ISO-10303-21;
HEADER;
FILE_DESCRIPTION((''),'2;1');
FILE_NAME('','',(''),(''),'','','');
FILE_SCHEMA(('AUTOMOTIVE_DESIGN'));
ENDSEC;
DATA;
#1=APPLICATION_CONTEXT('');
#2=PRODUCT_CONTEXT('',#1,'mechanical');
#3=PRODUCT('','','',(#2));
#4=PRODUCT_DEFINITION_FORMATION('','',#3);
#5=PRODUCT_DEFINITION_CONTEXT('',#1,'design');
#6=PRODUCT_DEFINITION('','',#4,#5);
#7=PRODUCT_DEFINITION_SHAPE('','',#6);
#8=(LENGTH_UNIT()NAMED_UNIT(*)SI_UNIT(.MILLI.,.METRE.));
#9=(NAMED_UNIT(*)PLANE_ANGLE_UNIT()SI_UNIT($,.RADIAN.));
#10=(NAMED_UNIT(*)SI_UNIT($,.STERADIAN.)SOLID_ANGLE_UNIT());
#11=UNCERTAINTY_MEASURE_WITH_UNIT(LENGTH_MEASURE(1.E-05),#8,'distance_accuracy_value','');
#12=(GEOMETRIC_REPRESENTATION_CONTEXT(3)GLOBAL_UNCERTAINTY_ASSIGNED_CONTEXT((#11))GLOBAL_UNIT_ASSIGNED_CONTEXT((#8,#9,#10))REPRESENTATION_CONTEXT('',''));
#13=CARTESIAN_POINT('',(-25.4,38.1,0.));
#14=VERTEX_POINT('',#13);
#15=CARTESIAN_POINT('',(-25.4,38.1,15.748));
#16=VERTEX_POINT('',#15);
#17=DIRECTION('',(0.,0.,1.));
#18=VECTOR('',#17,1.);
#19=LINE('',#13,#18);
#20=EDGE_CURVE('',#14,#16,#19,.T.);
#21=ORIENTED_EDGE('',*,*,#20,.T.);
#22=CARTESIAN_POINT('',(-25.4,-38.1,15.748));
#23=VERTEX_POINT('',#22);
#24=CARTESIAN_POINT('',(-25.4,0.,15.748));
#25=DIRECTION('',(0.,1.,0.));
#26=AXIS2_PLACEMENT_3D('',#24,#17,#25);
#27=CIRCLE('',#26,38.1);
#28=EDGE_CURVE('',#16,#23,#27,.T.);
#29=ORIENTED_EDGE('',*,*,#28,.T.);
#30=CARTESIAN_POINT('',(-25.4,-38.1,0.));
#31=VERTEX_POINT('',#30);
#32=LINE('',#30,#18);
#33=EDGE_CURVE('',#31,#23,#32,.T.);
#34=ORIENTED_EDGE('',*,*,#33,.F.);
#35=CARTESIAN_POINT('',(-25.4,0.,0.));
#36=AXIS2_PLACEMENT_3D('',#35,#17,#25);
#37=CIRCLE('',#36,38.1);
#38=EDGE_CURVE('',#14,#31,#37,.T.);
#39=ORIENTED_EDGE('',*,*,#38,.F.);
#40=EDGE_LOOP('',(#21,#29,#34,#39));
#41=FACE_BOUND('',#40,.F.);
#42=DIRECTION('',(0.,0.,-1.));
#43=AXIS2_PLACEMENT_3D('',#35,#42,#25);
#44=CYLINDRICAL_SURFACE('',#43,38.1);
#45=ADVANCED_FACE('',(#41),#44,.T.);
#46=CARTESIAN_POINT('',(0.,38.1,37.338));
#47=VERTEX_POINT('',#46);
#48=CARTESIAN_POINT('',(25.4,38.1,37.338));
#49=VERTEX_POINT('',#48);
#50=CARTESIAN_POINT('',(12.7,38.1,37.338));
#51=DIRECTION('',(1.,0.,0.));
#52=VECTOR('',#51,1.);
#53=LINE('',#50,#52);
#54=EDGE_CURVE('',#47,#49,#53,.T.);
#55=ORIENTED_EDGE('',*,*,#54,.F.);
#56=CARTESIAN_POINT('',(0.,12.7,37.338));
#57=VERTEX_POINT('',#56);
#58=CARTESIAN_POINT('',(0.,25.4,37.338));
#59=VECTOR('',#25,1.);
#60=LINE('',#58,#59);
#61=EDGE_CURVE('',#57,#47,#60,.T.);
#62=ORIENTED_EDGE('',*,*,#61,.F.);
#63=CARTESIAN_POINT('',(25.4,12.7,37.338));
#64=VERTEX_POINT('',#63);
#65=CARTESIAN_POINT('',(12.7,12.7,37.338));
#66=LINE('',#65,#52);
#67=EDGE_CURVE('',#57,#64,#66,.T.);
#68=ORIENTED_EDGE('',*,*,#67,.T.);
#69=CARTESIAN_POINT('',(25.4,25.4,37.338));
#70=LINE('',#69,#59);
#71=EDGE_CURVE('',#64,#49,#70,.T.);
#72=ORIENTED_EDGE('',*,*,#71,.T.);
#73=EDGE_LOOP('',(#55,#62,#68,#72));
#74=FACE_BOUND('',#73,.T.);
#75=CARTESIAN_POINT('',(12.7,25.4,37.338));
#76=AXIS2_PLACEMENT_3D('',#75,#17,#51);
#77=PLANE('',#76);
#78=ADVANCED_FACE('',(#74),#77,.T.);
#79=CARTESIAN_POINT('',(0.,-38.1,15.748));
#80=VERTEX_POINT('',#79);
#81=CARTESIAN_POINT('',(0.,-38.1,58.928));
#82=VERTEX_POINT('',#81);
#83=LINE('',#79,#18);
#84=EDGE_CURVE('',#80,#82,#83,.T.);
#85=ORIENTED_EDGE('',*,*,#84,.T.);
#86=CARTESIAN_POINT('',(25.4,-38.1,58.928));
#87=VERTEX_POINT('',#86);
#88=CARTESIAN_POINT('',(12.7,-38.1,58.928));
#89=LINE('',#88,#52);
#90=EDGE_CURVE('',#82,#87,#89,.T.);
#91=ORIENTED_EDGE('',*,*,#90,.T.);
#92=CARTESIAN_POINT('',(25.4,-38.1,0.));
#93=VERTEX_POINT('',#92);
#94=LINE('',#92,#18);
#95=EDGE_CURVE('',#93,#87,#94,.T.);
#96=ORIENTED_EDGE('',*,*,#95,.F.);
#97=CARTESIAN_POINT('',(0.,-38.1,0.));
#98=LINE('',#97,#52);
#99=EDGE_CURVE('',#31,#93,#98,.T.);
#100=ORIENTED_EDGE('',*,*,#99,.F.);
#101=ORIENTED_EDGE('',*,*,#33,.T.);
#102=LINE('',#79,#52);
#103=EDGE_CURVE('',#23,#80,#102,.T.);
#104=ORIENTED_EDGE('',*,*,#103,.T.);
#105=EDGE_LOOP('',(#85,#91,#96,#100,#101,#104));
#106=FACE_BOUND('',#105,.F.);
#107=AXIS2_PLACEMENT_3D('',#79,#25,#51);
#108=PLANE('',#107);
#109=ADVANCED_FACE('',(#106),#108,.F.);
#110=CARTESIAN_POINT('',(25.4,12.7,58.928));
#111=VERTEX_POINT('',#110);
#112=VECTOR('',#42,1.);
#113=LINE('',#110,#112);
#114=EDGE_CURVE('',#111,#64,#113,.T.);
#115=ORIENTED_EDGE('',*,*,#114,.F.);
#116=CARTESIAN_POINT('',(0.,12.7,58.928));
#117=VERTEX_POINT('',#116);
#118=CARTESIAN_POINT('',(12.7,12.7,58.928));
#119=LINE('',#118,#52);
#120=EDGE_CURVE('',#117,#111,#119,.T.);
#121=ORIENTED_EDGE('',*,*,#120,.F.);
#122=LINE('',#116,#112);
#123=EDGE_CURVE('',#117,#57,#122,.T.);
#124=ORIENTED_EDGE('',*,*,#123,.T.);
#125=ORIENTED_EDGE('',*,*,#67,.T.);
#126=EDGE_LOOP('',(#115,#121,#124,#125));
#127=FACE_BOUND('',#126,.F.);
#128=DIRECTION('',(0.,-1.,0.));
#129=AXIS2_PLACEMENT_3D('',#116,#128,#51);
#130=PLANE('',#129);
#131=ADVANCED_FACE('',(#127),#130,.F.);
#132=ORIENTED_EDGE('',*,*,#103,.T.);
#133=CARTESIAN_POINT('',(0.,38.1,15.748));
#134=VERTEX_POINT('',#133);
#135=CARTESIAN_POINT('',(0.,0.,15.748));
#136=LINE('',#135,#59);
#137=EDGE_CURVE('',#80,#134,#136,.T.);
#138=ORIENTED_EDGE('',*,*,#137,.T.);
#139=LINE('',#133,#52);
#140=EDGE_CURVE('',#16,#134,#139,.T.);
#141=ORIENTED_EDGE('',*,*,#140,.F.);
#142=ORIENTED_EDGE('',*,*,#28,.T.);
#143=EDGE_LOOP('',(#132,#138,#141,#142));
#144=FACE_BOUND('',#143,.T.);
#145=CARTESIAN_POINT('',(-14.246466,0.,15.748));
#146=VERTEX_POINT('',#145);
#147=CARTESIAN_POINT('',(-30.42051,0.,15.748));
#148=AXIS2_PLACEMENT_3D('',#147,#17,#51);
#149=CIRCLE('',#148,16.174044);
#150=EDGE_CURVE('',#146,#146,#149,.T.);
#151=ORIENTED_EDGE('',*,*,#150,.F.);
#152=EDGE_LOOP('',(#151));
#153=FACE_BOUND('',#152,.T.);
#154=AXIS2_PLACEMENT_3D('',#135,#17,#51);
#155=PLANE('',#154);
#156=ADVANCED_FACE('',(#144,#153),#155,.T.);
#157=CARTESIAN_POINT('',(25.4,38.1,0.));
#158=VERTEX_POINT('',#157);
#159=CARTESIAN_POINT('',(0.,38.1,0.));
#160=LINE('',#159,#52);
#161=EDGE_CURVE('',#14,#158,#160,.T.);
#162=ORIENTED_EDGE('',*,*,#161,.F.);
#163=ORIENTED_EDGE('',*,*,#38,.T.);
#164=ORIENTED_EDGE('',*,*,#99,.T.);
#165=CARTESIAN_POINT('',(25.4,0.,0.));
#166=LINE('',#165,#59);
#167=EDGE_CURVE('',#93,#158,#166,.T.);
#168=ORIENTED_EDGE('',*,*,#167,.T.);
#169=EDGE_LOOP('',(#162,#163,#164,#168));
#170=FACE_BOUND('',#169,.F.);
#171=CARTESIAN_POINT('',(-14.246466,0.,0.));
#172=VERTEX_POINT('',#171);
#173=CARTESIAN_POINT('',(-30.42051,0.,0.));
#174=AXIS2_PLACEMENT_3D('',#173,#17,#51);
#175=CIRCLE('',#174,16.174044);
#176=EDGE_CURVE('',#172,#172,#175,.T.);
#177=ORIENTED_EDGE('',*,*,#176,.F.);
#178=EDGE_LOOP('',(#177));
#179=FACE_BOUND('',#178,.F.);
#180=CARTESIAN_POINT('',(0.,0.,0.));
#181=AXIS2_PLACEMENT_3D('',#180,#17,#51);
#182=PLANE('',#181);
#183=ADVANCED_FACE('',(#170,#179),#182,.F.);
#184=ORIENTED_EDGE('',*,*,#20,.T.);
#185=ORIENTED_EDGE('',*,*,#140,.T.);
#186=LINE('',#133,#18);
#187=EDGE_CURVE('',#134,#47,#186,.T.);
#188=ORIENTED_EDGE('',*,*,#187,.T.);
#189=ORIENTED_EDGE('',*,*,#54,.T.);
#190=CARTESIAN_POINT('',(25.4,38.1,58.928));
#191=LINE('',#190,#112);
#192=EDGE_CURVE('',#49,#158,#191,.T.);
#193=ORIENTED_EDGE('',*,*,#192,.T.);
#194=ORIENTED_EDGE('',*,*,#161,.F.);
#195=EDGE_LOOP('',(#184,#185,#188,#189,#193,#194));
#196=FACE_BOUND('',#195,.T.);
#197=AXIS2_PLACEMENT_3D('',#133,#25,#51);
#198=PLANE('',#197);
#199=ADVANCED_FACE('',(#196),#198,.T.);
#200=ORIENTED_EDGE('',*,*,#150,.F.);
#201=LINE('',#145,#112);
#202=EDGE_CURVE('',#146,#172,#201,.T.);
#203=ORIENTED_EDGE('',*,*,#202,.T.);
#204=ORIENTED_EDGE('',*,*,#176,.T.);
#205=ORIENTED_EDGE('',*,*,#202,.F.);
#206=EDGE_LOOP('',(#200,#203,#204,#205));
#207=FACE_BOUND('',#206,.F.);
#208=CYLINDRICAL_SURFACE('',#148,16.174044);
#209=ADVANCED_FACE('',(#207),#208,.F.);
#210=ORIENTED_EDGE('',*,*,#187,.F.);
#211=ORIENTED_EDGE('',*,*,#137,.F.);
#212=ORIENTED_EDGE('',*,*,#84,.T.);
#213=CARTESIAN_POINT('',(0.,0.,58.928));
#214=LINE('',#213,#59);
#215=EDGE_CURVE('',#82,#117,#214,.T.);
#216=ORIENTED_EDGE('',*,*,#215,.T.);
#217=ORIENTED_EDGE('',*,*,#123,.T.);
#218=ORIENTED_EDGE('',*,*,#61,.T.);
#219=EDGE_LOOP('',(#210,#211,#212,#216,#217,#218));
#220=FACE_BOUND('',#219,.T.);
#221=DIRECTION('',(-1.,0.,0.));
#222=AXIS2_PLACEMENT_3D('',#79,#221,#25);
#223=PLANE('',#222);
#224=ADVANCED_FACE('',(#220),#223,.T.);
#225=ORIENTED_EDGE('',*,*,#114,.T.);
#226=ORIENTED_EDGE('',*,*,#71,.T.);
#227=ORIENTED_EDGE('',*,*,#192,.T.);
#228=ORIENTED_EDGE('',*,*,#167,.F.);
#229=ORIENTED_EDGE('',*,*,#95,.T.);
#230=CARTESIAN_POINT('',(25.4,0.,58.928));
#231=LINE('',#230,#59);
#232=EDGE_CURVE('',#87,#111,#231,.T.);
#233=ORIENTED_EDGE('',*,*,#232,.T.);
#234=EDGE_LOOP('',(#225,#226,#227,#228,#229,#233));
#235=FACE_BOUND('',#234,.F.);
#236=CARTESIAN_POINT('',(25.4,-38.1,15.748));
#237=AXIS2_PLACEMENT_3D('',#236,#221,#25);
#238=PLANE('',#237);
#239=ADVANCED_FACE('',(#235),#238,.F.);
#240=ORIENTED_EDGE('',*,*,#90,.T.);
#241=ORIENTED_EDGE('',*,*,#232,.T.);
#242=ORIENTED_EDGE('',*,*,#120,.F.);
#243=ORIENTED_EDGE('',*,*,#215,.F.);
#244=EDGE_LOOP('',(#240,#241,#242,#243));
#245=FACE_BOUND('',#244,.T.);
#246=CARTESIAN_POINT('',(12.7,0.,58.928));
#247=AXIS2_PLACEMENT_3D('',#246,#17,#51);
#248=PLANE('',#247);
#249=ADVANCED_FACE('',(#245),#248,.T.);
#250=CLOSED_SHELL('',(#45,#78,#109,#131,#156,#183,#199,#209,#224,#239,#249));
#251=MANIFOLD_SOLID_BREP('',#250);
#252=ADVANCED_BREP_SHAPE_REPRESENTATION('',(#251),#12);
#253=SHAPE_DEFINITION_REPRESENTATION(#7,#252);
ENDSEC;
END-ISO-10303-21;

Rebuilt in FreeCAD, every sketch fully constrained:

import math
import FreeCAD as App
import Part
import Sketcher
Q = App.Units.Quantity

doc = App.newDocument("Part")
body = doc.addObject("PartDesign::Body", "Body")

# Sketch on XY plane
sketch1 = body.newObject("Sketcher::SketchObject", "Sketch")
sketch1.AttachmentSupport = (doc.getObject("XY_Plane"), [""])
sketch1.MapMode = "FlatFace"
sketch1.addGeometry(Part.LineSegment(App.Vector(-25, -38, 0), App.Vector(25, -38, 0)), False)
sketch1.addGeometry(Part.LineSegment(App.Vector(25, -38, 0), App.Vector(25, 38, 0)), False)
sketch1.addGeometry(Part.LineSegment(App.Vector(25, 38, 0), App.Vector(-25, 38, 0)), False)
sketch1.addGeometry(Part.ArcOfCircle(Part.Circle(App.Vector(-25, 0, 0), App.Vector(0, 0, 1), 38), math.radians(90), math.radians(270)), False)
sketch1.addConstraint(Sketcher.Constraint("Coincident", 0, 2, 1, 1))
sketch1.addConstraint(Sketcher.Constraint("Coincident", 1, 2, 2, 1))
sketch1.addConstraint(Sketcher.Constraint("Tangent", 2, 2, 3, 1))
sketch1.addConstraint(Sketcher.Constraint("Tangent", 3, 2, 0, 1))
sketch1.addConstraint(Sketcher.Constraint("Horizontal", 0))
sketch1.addConstraint(Sketcher.Constraint("Vertical", 1))
sketch1.addConstraint(Sketcher.Constraint("Horizontal", 2))
sketch1.addConstraint(Sketcher.Constraint("Symmetric", 0, 2, 2, 2, -1, 1))
sketch1.addConstraint(Sketcher.Constraint("Radius", 3, Q("1.5 in")))
sketch1.addConstraint(Sketcher.Constraint("DistanceX", 0, 1, 0, 2, Q("2 in")))
pad1 = body.newObject("PartDesign::Pad", "Pad")
pad1.Profile = sketch1
pad1.Length = Q("0.62 in")

# Sketch on XY plane
sketch2 = body.newObject("Sketcher::SketchObject", "Sketch001")
sketch2.AttachmentSupport = (doc.getObject("XY_Plane"), [""])
sketch2.MapMode = "FlatFace"
sketch2.AttachmentOffset = App.Placement(App.Vector(0, 0, 0.62 * 25.4), App.Rotation())
sketch2.addGeometry(Part.Circle(App.Vector(-30, 0, 0), App.Vector(0, 0, 1), 16), False)
sketch2.addConstraint(Sketcher.Constraint("PointOnObject", 0, 3, -1))
sketch2.addConstraint(Sketcher.Constraint("Diameter", 0, 32.348088))
sketch2.addConstraint(Sketcher.Constraint("DistanceX", 0, 3, -1, 1, 30.42051))
pocket1 = body.newObject("PartDesign::Pocket", "Pocket")
pocket1.Profile = sketch2
pocket1.Length = Q("1 in")

# Sketch on XY plane
sketch3 = body.newObject("Sketcher::SketchObject", "Sketch002")
sketch3.AttachmentSupport = (doc.getObject("XY_Plane"), [""])
sketch3.MapMode = "FlatFace"
sketch3.AttachmentOffset = App.Placement(App.Vector(0, 0, 0.62 * 25.4), App.Rotation())
sketch3.addGeometry(Part.LineSegment(App.Vector(0, 38, 0), App.Vector(0, -38, 0)), False)
sketch3.addGeometry(Part.LineSegment(App.Vector(0, -38, 0), App.Vector(25, -38, 0)), False)
sketch3.addGeometry(Part.LineSegment(App.Vector(25, -38, 0), App.Vector(25, 38, 0)), False)
sketch3.addGeometry(Part.LineSegment(App.Vector(25, 38, 0), App.Vector(0, 38, 0)), False)
sketch3.addConstraint(Sketcher.Constraint("Coincident", 0, 2, 1, 1))
sketch3.addConstraint(Sketcher.Constraint("Coincident", 1, 2, 2, 1))
sketch3.addConstraint(Sketcher.Constraint("Coincident", 2, 2, 3, 1))
sketch3.addConstraint(Sketcher.Constraint("Coincident", 3, 2, 0, 1))
sketch3.addConstraint(Sketcher.Constraint("Vertical", 0))
sketch3.addConstraint(Sketcher.Constraint("Horizontal", 1))
sketch3.addConstraint(Sketcher.Constraint("Vertical", 2))
sketch3.addConstraint(Sketcher.Constraint("Horizontal", 3))
sketch3.addConstraint(Sketcher.Constraint("Symmetric", 0, 2, 3, 2, -1, 1))
sketch3.addConstraint(Sketcher.Constraint("DistanceX", 1, 1, 1, 2, Q("1 in")))
sketch3.addConstraint(Sketcher.Constraint("DistanceY", 0, 2, 0, 1, Q("3 in")))
pad2 = body.newObject("PartDesign::Pad", "Pad001")
pad2.Profile = sketch3
pad2.Length = Q("1.7 in")

# Sketch on XY plane
sketch4 = body.newObject("Sketcher::SketchObject", "Sketch003")
sketch4.AttachmentSupport = (doc.getObject("XY_Plane"), [""])
sketch4.MapMode = "FlatFace"
sketch4.AttachmentOffset = App.Placement(App.Vector(0, 0, 2.32 * 25.4), App.Rotation())
sketch4.addGeometry(Part.LineSegment(App.Vector(0, 38, 0), App.Vector(0, 13, 0)), False)
sketch4.addGeometry(Part.LineSegment(App.Vector(0, 13, 0), App.Vector(25, 13, 0)), False)
sketch4.addGeometry(Part.LineSegment(App.Vector(25, 13, 0), App.Vector(25, 38, 0)), False)
sketch4.addGeometry(Part.LineSegment(App.Vector(25, 38, 0), App.Vector(0, 38, 0)), False)
sketch4.addConstraint(Sketcher.Constraint("Coincident", 0, 2, 1, 1))
sketch4.addConstraint(Sketcher.Constraint("Coincident", 1, 2, 2, 1))
sketch4.addConstraint(Sketcher.Constraint("Coincident", 2, 2, 3, 1))
sketch4.addConstraint(Sketcher.Constraint("Coincident", 3, 2, 0, 1))
sketch4.addConstraint(Sketcher.Constraint("Vertical", 0))
sketch4.addConstraint(Sketcher.Constraint("Horizontal", 1))
sketch4.addConstraint(Sketcher.Constraint("Vertical", 2))
sketch4.addConstraint(Sketcher.Constraint("Horizontal", 3))
sketch4.addConstraint(Sketcher.Constraint("PointOnObject", 0, 2, -2))
sketch4.addConstraint(Sketcher.Constraint("Equal", 3, 0))
sketch4.addConstraint(Sketcher.Constraint("DistanceX", 1, 1, 1, 2, Q("1 in")))
sketch4.addConstraint(Sketcher.Constraint("DistanceY", -1, 1, 0, 2, Q("0.5 in")))
pocket2 = body.newObject("PartDesign::Pocket", "Pocket001")
pocket2.Profile = sketch4
pocket2.Length = Q("0.85 in")

doc.recompute()
